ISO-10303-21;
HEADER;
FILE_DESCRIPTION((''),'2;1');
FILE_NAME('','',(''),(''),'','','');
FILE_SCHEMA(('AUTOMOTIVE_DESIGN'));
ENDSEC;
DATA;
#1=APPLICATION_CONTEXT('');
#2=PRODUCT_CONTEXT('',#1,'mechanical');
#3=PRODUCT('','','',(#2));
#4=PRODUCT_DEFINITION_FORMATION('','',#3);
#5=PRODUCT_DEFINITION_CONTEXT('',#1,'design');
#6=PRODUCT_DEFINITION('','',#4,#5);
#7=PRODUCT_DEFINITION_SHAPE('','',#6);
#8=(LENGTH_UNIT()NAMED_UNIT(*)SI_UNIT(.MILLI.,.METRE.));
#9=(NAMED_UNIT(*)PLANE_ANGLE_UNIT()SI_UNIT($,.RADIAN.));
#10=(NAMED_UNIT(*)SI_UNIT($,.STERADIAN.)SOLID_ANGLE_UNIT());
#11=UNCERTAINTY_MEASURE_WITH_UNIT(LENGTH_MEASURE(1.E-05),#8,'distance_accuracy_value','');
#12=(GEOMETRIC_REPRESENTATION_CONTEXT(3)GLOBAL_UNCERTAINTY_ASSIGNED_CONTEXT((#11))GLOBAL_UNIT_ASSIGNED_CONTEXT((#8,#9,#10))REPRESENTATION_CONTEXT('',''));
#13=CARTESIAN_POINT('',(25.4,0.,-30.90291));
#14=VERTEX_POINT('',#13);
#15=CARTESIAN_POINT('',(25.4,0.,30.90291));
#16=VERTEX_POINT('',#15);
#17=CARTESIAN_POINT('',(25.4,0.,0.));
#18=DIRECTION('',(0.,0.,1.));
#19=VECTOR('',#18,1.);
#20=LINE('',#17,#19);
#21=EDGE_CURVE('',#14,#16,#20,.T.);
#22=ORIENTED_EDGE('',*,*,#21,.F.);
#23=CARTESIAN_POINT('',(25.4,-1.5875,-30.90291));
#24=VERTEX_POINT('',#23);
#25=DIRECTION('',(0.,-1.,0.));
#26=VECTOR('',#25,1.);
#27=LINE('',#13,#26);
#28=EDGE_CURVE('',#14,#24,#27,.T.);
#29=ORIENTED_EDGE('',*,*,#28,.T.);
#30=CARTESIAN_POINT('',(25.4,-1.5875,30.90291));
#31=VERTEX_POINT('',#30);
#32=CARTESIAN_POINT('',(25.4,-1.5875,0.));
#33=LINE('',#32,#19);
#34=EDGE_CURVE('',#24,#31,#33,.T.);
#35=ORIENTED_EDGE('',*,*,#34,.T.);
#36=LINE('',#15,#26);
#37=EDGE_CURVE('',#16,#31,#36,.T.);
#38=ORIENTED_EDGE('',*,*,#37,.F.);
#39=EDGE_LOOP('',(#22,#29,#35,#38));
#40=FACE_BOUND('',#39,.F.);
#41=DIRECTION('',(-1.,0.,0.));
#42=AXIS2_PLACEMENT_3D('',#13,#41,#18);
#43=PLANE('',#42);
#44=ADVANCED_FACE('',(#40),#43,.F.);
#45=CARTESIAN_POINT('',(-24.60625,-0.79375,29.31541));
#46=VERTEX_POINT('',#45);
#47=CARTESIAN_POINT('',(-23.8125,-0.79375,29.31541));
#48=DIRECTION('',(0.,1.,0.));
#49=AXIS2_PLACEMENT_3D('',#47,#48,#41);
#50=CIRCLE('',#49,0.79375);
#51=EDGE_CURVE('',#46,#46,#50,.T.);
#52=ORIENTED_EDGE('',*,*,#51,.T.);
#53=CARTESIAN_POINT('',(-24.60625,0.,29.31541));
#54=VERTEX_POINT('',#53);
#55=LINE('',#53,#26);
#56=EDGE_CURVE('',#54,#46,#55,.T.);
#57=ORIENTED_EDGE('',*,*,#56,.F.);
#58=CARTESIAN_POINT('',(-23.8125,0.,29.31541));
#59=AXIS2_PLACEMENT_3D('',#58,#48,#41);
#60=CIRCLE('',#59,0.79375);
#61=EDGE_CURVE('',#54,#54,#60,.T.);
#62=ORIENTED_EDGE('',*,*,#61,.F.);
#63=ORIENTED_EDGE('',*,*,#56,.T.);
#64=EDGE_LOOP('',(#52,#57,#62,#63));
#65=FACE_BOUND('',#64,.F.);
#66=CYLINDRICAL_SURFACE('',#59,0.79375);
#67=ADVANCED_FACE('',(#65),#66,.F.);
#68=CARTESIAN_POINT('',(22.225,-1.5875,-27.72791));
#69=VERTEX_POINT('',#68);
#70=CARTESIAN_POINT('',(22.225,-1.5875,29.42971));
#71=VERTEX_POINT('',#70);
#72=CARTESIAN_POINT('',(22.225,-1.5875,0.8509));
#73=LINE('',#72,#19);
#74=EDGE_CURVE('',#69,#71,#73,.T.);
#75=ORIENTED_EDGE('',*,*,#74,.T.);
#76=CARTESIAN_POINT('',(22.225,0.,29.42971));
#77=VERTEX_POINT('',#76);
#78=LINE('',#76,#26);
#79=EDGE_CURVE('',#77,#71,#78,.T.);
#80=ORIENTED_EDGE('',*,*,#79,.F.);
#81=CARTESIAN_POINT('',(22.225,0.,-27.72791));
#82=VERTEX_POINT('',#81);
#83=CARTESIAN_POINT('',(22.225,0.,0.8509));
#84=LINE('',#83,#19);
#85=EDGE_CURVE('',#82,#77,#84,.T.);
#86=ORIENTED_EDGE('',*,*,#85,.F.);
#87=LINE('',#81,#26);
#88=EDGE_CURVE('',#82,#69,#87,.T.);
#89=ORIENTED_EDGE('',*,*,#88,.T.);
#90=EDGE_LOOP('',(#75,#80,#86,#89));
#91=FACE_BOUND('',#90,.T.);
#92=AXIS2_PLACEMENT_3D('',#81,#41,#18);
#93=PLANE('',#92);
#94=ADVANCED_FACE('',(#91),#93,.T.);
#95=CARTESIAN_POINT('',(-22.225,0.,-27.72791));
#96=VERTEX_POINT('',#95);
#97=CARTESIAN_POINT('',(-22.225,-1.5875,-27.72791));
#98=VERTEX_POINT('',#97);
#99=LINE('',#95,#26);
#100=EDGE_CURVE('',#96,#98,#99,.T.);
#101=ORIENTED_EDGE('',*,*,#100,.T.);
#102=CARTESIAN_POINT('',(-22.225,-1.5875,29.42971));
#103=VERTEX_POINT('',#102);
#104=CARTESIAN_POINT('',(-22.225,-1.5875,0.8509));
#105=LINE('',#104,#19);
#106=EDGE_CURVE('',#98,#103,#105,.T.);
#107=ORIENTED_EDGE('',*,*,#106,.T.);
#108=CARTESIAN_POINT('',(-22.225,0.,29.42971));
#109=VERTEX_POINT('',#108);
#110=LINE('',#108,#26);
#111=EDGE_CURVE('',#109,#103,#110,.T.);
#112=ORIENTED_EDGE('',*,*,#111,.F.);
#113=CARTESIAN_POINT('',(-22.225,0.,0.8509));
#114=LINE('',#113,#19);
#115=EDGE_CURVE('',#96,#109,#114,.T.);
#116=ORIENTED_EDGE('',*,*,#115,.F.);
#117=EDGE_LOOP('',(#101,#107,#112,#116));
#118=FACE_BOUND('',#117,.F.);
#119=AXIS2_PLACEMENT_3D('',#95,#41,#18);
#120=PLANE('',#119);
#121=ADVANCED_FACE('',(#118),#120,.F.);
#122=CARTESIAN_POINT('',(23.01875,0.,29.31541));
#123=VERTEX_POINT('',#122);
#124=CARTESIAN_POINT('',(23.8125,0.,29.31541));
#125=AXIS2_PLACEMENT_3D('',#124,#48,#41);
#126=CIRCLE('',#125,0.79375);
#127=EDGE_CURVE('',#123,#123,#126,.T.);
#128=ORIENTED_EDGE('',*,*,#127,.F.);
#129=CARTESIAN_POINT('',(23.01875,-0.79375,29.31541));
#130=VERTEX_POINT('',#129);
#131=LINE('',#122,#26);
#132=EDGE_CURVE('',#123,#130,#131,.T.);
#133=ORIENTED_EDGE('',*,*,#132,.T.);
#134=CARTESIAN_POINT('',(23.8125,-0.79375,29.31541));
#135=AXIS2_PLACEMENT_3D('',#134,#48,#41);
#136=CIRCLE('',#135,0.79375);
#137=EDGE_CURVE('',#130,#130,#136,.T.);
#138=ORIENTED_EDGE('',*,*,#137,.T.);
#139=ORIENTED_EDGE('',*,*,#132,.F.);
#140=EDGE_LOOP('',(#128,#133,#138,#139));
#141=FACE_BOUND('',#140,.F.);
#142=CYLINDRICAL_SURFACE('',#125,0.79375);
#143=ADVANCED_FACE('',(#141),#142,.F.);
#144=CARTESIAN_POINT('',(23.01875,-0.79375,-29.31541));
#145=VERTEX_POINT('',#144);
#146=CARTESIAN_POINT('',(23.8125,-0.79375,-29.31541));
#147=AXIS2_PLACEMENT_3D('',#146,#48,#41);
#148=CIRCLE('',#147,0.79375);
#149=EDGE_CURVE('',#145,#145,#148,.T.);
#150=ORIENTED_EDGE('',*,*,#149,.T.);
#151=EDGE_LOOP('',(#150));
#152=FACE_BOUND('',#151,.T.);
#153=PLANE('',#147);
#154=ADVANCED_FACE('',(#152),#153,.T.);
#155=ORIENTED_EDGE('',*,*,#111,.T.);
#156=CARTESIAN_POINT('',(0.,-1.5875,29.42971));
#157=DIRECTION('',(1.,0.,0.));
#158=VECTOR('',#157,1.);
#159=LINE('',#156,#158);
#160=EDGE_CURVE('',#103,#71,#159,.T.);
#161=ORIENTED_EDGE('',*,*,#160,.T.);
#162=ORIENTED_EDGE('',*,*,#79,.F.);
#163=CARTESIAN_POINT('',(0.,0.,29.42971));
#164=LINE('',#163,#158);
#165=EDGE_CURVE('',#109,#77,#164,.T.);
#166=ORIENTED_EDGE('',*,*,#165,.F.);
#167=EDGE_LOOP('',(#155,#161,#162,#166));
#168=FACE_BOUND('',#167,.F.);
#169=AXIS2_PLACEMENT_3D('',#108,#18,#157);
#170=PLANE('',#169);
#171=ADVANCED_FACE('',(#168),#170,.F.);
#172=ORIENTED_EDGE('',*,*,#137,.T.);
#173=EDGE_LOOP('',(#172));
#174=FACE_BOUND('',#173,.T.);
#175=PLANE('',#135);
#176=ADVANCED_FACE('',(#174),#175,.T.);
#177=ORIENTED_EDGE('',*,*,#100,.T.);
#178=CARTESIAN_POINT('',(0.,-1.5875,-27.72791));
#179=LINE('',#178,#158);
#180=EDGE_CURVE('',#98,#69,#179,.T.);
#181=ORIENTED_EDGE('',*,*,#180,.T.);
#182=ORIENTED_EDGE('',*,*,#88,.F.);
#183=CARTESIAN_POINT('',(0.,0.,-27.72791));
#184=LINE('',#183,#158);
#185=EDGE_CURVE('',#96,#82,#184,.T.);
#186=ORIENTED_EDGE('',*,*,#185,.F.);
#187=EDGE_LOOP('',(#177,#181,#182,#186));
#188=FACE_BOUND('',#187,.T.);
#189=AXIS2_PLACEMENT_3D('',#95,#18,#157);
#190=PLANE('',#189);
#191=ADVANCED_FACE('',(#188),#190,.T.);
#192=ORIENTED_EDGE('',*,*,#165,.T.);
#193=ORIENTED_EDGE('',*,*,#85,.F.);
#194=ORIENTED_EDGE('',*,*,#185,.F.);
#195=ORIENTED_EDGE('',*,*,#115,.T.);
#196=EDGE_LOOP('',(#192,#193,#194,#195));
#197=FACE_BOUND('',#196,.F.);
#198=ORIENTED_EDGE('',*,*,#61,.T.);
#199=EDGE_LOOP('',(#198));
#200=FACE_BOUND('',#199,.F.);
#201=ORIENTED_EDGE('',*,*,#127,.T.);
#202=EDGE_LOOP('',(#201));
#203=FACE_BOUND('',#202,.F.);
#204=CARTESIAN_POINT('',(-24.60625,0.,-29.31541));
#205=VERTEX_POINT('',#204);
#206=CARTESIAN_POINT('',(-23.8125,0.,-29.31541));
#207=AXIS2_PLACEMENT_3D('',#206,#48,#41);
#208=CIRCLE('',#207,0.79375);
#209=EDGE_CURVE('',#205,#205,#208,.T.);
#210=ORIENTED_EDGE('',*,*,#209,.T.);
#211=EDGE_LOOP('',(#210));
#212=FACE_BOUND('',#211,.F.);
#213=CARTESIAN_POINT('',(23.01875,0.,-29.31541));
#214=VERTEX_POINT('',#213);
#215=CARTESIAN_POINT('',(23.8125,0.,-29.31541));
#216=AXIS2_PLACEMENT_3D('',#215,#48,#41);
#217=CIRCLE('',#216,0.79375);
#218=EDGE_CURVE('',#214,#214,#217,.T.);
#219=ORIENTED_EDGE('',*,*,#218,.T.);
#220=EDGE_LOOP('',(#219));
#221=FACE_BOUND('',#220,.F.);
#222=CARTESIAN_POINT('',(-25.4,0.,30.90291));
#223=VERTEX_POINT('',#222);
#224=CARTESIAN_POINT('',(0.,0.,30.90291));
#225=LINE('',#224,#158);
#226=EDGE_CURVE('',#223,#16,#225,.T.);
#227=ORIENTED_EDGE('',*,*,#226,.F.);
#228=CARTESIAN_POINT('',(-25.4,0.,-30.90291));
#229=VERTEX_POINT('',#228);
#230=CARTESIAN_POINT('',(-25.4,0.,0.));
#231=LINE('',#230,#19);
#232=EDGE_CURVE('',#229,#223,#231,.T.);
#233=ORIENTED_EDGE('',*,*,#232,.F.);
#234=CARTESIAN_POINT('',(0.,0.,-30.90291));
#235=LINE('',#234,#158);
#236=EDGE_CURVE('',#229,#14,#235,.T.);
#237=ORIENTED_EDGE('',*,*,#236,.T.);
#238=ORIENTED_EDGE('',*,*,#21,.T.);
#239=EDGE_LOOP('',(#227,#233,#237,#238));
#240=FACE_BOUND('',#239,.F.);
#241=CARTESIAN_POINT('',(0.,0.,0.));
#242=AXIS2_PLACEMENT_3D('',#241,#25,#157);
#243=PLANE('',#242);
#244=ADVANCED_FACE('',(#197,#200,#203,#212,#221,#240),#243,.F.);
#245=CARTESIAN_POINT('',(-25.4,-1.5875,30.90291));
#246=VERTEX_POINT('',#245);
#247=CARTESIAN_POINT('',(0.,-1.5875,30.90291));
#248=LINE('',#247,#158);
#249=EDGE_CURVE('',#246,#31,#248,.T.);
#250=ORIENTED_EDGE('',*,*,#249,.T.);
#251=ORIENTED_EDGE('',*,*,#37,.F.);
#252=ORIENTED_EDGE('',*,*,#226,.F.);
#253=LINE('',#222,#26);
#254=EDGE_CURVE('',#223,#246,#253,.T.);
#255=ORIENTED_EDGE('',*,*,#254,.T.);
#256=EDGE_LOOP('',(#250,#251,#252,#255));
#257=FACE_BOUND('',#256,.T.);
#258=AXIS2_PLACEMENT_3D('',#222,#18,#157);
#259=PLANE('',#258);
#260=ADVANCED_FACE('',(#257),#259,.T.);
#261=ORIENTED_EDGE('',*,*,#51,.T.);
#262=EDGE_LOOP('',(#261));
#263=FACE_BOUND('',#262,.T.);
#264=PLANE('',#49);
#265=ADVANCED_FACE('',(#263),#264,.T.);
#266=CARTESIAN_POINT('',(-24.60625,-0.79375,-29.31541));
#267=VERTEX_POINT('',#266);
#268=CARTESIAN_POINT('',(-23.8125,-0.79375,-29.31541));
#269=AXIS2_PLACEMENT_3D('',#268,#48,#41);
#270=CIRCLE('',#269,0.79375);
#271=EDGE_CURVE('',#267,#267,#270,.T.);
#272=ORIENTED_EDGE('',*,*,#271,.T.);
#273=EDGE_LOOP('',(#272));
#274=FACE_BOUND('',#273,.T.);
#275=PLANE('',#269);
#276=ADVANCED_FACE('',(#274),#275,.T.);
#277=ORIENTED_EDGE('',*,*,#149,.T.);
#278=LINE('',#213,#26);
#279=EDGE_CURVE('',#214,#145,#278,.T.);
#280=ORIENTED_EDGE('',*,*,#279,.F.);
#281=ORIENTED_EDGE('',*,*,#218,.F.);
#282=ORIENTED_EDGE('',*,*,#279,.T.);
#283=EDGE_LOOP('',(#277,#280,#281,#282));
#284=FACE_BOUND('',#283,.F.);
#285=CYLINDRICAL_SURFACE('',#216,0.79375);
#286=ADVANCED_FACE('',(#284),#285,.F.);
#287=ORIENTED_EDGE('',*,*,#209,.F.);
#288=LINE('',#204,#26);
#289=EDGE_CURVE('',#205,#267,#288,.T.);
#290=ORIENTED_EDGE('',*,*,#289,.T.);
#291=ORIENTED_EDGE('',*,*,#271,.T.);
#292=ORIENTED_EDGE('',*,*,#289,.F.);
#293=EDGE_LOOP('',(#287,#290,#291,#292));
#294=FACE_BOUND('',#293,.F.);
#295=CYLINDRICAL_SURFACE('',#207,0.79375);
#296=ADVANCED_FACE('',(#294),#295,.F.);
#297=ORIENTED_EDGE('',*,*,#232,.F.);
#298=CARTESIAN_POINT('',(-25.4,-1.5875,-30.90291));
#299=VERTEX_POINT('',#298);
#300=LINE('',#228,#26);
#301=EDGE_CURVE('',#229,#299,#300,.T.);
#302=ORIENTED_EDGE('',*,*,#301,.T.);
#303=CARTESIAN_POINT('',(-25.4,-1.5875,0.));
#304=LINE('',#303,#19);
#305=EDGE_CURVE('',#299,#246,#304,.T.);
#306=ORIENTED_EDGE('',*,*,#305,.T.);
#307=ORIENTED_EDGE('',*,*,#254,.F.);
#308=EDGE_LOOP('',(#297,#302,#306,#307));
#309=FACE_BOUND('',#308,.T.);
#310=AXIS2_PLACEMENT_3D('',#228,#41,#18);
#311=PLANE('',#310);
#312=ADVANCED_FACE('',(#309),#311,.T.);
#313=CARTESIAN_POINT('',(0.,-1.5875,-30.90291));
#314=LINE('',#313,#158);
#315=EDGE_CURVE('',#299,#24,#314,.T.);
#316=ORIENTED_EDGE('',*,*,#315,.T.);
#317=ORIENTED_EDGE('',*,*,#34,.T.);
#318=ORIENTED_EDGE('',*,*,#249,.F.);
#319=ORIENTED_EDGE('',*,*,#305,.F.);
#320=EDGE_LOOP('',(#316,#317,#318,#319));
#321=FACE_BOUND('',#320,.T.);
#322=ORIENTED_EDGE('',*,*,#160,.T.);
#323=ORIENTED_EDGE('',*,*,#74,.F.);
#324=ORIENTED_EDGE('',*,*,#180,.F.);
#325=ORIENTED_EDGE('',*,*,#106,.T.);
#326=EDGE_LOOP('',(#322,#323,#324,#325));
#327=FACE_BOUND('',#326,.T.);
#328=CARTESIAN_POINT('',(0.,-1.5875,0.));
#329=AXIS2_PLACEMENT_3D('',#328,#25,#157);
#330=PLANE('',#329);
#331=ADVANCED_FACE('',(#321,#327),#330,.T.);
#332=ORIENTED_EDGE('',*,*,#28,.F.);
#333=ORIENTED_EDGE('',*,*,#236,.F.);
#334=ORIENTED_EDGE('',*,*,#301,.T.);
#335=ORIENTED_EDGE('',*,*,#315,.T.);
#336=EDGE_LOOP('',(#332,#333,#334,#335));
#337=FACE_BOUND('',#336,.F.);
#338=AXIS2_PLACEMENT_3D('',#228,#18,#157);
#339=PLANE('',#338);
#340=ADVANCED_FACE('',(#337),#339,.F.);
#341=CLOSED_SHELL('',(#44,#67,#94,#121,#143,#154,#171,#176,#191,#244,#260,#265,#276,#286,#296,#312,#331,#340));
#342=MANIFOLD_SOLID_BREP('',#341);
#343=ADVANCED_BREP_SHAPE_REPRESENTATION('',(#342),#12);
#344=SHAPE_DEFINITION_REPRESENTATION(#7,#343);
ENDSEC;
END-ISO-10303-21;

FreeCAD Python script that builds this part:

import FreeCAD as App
import Part
import Sketcher
Q = App.Units.Quantity


def add_polygon(sketch, points):
    """Adds a closed chain of lines whose ends are joined by coincident constraints."""
    first, n = sketch.GeometryCount, len(points)
    for a, b in zip(points, points[1:] + points[:1]):
        sketch.addGeometry(Part.LineSegment(App.Vector(*a, 0), App.Vector(*b, 0)), False)
    for i in range(n):
        sketch.addConstraint(Sketcher.Constraint("Coincident", first + i, 2, first + (i + 1) % n, 1))

doc = App.newDocument("Part")
params = doc.addObject("Spreadsheet::Sheet", "Params")
for row, (alias, value) in enumerate([
    ("sketch1_width", "2 in"),
    ("sketch1_width2", "1.75 in"),
    ("pad1_length", "0.0625 in"),
    ("sketch2_diameter", "0.0625 in"),
    ("pocket1_length", "0.03125 in"),
], start=1):
    params.set(f"A{row}", alias)
    params.set(f"B{row}", "=" + value)
    params.setAlias(f"B{row}", alias)

body = doc.addObject("PartDesign::Body", "Body")

# Sketch on XZ plane
sketch1 = doc.addObject("Sketcher::SketchObject", "Sketch")
body.addObject(sketch1)
sketch1.AttachmentSupport = (doc.XZ_Plane, [""])
sketch1.MapMode = "FlatFace"
add_polygon(sketch1, [(-25, 31), (-25, -31), (25, -31), (25, 31)])  # lines 0-3
add_polygon(sketch1, [(22, -28), (-22, -28), (-22, 29), (22, 29)])  # lines 4-7
sketch1.addConstraint([
    Sketcher.Constraint("Vertical", 0),
    Sketcher.Constraint("Horizontal", 1),
    Sketcher.Constraint("Vertical", 2),
    Sketcher.Constraint("Horizontal", 3),
    Sketcher.Constraint("Horizontal", 4),
    Sketcher.Constraint("Vertical", 5),
    Sketcher.Constraint("Horizontal", 6),
    Sketcher.Constraint("Vertical", 7),
    Sketcher.Constraint("Symmetric", 0, 2, 2, 2, -1, 1),
    Sketcher.Constraint("DistanceX", 1, 1, 1, 2, Q("2 in")),
    Sketcher.Constraint("DistanceX", 4, 2, 4, 1, Q("1.75 in")),
    Sketcher.Constraint("DistanceY", 0, 2, 0, 1, Q("2.4333 in")),
    Sketcher.Constraint("DistanceY", 5, 1, 5, 2, Q("2.2503 in")),
    Sketcher.Constraint("DistanceX", 4, 2, -1, 1, Q("0.875 in")),
    Sketcher.Constraint("DistanceY", 0, 2, 4, 2, Q("0.125 in")),
])
sketch1.setExpression("Constraints[17]", "Params.sketch1_width")
sketch1.setExpression("Constraints[18]", "Params.sketch1_width2")
pad1 = doc.addObject("PartDesign::Pad", "Pad")
body.addObject(pad1)
pad1.Profile = sketch1
pad1.setExpression("Length", "Params.pad1_length")

# Sketch on XZ plane
sketch2 = doc.addObject("Sketcher::SketchObject", "Sketch001")
body.addObject(sketch2)
sketch2.AttachmentSupport = (doc.XZ_Plane, [""])
sketch2.MapMode = "FlatFace"
sketch2.addGeometry([
    Part.Circle(App.Vector(23.8, 29.3, 0), App.Vector(0, 0, 1), 0.8),
    Part.Circle(App.Vector(23.8, -29.3, 0), App.Vector(0, 0, 1), 0.8),
    Part.Circle(App.Vector(-23.8, -29.3, 0), App.Vector(0, 0, 1), 0.8),
    Part.Circle(App.Vector(-23.8, 29.3, 0), App.Vector(0, 0, 1), 0.8),
], False)
sketch2.addConstraint([
    Sketcher.Constraint("Equal", 0, 1),
    Sketcher.Constraint("Equal", 1, 2),
    Sketcher.Constraint("Equal", 2, 3),
    Sketcher.Constraint("Symmetric", 0, 3, 2, 3, -1, 1),
    Sketcher.Constraint("Symmetric", 1, 3, 3, 3, -1, 1),
    Sketcher.Constraint("Symmetric", 1, 3, 2, 3, -2),
    Sketcher.Constraint("Diameter", 0, Q("0.0625 in")),
    Sketcher.Constraint("DistanceX", -1, 1, 0, 3, Q("0.9375 in")),
    Sketcher.Constraint("DistanceY", 1, 3, 0, 3, Q("2.3083 in")),
])
sketch2.setExpression("Constraints[6]", "Params.sketch2_diameter")
pocket1 = doc.addObject("PartDesign::Pocket", "Pocket")
body.addObject(pocket1)
pocket1.Profile = sketch2
pocket1.setExpression("Length", "Params.pocket1_length")
pocket1.Reversed = True

doc.recompute()
